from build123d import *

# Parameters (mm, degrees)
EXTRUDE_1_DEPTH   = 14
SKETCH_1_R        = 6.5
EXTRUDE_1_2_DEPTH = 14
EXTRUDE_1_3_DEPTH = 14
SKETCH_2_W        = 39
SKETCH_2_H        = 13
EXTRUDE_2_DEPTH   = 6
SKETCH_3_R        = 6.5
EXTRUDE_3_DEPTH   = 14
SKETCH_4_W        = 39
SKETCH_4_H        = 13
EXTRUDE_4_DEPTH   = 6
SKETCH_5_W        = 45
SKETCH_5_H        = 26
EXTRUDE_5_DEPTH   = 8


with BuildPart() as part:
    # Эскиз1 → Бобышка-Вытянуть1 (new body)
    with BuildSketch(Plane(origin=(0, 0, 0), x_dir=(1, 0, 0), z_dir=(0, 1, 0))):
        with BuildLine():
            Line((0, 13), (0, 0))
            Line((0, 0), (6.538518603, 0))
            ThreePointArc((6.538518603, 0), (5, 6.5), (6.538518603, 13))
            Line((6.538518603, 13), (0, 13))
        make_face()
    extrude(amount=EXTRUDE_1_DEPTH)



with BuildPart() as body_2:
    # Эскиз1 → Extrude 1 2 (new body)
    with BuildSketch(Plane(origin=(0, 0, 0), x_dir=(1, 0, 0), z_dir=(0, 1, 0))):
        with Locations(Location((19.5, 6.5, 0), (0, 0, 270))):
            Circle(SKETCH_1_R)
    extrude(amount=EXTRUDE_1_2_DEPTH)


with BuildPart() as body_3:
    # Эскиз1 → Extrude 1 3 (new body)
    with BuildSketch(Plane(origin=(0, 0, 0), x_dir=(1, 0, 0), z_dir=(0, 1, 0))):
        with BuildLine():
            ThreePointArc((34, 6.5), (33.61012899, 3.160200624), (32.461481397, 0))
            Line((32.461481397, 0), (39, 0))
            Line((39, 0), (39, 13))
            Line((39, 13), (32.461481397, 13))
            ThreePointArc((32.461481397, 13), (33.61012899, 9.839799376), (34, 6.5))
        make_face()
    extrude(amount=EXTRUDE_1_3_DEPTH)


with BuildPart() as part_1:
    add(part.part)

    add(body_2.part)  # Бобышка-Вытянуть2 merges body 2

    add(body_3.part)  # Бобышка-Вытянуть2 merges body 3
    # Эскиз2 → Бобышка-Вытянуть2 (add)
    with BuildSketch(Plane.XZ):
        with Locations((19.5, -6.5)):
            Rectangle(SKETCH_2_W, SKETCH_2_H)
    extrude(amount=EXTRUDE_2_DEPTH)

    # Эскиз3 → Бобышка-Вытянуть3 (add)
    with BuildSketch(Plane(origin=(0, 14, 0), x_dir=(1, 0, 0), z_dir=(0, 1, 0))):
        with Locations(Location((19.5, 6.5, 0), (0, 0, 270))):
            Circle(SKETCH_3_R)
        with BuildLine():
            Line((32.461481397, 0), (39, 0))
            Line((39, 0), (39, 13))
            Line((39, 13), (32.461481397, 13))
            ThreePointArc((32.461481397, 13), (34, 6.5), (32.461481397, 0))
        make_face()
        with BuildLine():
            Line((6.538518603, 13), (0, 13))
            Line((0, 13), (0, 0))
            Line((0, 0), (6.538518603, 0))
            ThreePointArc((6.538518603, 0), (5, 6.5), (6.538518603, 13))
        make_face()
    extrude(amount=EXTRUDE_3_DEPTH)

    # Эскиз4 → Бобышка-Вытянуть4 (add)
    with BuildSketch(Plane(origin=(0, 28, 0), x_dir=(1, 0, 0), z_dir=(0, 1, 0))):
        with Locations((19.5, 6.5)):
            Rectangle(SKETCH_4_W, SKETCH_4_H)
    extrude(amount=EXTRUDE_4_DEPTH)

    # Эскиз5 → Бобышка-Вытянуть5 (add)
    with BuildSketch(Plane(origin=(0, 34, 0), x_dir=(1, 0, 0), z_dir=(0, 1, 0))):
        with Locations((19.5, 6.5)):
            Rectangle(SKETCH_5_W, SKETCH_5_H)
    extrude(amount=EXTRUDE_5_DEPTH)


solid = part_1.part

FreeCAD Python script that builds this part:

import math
import FreeCAD as App
import Part
import Sketcher

V = App.Vector
Q = App.Units.Quantity


def add_polygon(sketch, points):
    """Adds a closed chain of lines whose ends are joined by coincident constraints."""
    first, n = sketch.GeometryCount, len(points)
    for a, b in zip(points, points[1:] + points[:1]):
        sketch.addGeometry(Part.LineSegment(App.Vector(*a, 0), App.Vector(*b, 0)), False)
    for i in range(n):
        sketch.addConstraint(Sketcher.Constraint("Coincident", first + i, 2, first + (i + 1) % n, 1))

doc = App.newDocument("Part")
body = doc.addObject("PartDesign::Body", "Body")

# Sketch on XZ plane
sketch1 = body.newObject("Sketcher::SketchObject", "Sketch")
sketch1.AttachmentSupport = (doc.getObject("XZ_Plane"), [""])
sketch1.MapMode = "FlatFace"
sketch1.addGeometry(Part.LineSegment(V(0, -13, 0), V(0, 0, 0)), False)
sketch1.addGeometry(Part.LineSegment(V(0, 0, 0), V(7, 0, 0)), False)
sketch1.addGeometry(Part.ArcOfCircle(Part.Circle(V(20, -6, 0), V(0, 0, 1), 15), math.radians(153), math.radians(207)), False)
sketch1.addGeometry(Part.LineSegment(V(7, -13, 0), V(0, -13, 0)), False)
sketch1.addConstraint(Sketcher.Constraint("Coincident", 0, 2, 1, 1))
sketch1.addConstraint(Sketcher.Constraint("Coincident", 1, 2, 2, 1))
sketch1.addConstraint(Sketcher.Constraint("Coincident", 2, 2, 3, 1))
sketch1.addConstraint(Sketcher.Constraint("Coincident", 3, 2, 0, 1))
sketch1.addConstraint(Sketcher.Constraint("Vertical", 0))
sketch1.addConstraint(Sketcher.Constraint("Horizontal", 1))
sketch1.addConstraint(Sketcher.Constraint("Horizontal", 3))
sketch1.addConstraint(Sketcher.Constraint("Coincident", 0, 2, -1, 1))
sketch1.addConstraint(Sketcher.Constraint("Vertical", 1, 2, 2, 2))
sketch1.addConstraint(Sketcher.Constraint("Radius", 2, Q("14.5 mm")))
sketch1.addConstraint(Sketcher.Constraint("DistanceY", 0, 1, 0, 2, Q("13 mm")))
sketch1.addConstraint(Sketcher.Constraint("DistanceX", -1, 1, 2, 3, Q("19.5 mm")))
pad1 = body.newObject("PartDesign::Pad", "Pad")
pad1.Profile = sketch1
pad1.Length = 14
pad1.Reversed = True
body2 = doc.addObject("PartDesign::Body", "Body001")

# Sketch on XZ plane
sketch2 = body2.newObject("Sketcher::SketchObject", "Sketch001")
sketch2.AttachmentSupport = (doc.getObject("XZ_Plane001"), [""])
sketch2.MapMode = "FlatFace"
sketch2.addGeometry(Part.Circle(V(20, -6, 0), V(0, 0, 1), 6), False)
sketch2.addConstraint(Sketcher.Constraint("Diameter", 0, Q("13 mm")))
sketch2.addConstraint(Sketcher.Constraint("DistanceX", -1, 1, 0, 3, Q("19.5 mm")))
sketch2.addConstraint(Sketcher.Constraint("DistanceY", 0, 3, -1, 1, Q("6.5 mm")))
pad2 = body2.newObject("PartDesign::Pad", "Pad001")
pad2.Profile = sketch2
pad2.Length = 14
pad2.Reversed = True
body3 = doc.addObject("PartDesign::Body", "Body002")

# Sketch on XZ plane
sketch3 = body3.newObject("Sketcher::SketchObject", "Sketch002")
sketch3.AttachmentSupport = (doc.getObject("XZ_Plane002"), [""])
sketch3.MapMode = "FlatFace"
sketch3.addGeometry(Part.ArcOfCircle(Part.Circle(V(19, -7, 0), V(0, 0, 1), 15), math.radians(0), math.radians(27)), False)
sketch3.addGeometry(Part.LineSegment(V(32, 0, 0), V(39, 0, 0)), False)
sketch3.addGeometry(Part.LineSegment(V(39, 0, 0), V(39, -13, 0)), False)
sketch3.addGeometry(Part.LineSegment(V(39, -13, 0), V(32, -13, 0)), False)
sketch3.addGeometry(Part.ArcOfCircle(Part.Circle(V(19, -6, 0), V(0, 0, 1), 15), math.radians(-27), math.radians(0)), False)
sketch3.addConstraint(Sketcher.Constraint("Coincident", 0, 2, 1, 1))
sketch3.addConstraint(Sketcher.Constraint("Coincident", 1, 2, 2, 1))
sketch3.addConstraint(Sketcher.Constraint("Coincident", 2, 2, 3, 1))
sketch3.addConstraint(Sketcher.Constraint("Coincident", 3, 2, 4, 1))
sketch3.addConstraint(Sketcher.Constraint("Tangent", 4, 2, 0, 1))
sketch3.addConstraint(Sketcher.Constraint("Horizontal", 1))
sketch3.addConstraint(Sketcher.Constraint("Vertical", 2))
sketch3.addConstraint(Sketcher.Constraint("Horizontal", 3))
sketch3.addConstraint(Sketcher.Constraint("Equal", 0, 4))
sketch3.addConstraint(Sketcher.Constraint("PointOnObject", 0, 2, -1))
sketch3.addConstraint(Sketcher.Constraint("Horizontal", 0, 3, 4, 2))
sketch3.addConstraint(Sketcher.Constraint("Vertical", 0, 2, 3, 2))
sketch3.addConstraint(Sketcher.Constraint("Radius", 0, Q("14.5 mm")))
sketch3.addConstraint(Sketcher.Constraint("DistanceY", 2, 2, 2, 1, Q("13 mm")))
sketch3.addConstraint(Sketcher.Constraint("DistanceX", -1, 1, 1, 2, Q("39 mm")))
sketch3.addConstraint(Sketcher.Constraint("DistanceX", -1, 1, 4, 2, Q("34 mm")))
pad3 = body3.newObject("PartDesign::Pad", "Pad002")
pad3.Profile = sketch3
pad3.Length = 14
pad3.Reversed = True
body.AllowCompound = True
doc.recompute()

boolean = body.newObject("PartDesign::Boolean", "Boolean")
boolean.Type = "Fuse"
boolean.addObjects([body2])
doc.recompute()

boolean2 = body.newObject("PartDesign::Boolean", "Boolean001")
boolean2.Type = "Fuse"
boolean2.addObjects([body3])

# Sketch on XZ plane
sketch4 = body.newObject("Sketcher::SketchObject", "Sketch003")
sketch4.AttachmentSupport = (doc.getObject("XZ_Plane"), [""])
sketch4.MapMode = "FlatFace"
add_polygon(sketch4, [(0, 0), (0, -13), (39, -13), (39, 0)])  # lines 0-3
sketch4.addConstraint(Sketcher.Constraint("Vertical", 0))
sketch4.addConstraint(Sketcher.Constraint("Horizontal", 1))
sketch4.addConstraint(Sketcher.Constraint("Vertical", 2))
sketch4.addConstraint(Sketcher.Constraint("Horizontal", 3))
sketch4.addConstraint(Sketcher.Constraint("Coincident", 3, 2, -1, 1))
sketch4.addConstraint(Sketcher.Constraint("DistanceX", 1, 1, 1, 2, Q("39 mm")))
sketch4.addConstraint(Sketcher.Constraint("DistanceY", 0, 2, 0, 1, Q("13 mm")))
pad4 = body.newObject("PartDesign::Pad", "Pad003")
pad4.Profile = sketch4
pad4.Length = 6

# Sketch on XZ plane
sketch5 = body.newObject("Sketcher::SketchObject", "Sketch004")
sketch5.AttachmentSupport = (doc.getObject("XZ_Plane"), [""])
sketch5.MapMode = "FlatFace"
sketch5.AttachmentOffset = App.Placement(V(0, 0, -14), App.Rotation())
sketch5.addGeometry(Part.Circle(V(20, -6, 0), V(0, 0, 1), 6), False)
sketch5.addGeometry(Part.LineSegment(V(32, 0, 0), V(39, 0, 0)), False)
sketch5.addGeometry(Part.LineSegment(V(39, 0, 0), V(39, -13, 0)), False)
sketch5.addGeometry(Part.LineSegment(V(39, -13, 0), V(32, -13, 0)), False)
sketch5.addGeometry(Part.ArcOfCircle(Part.Circle(V(19, -6, 0), V(0, 0, 1), 15), math.radians(-27), math.radians(27)), False)
sketch5.addGeometry(Part.LineSegment(V(7, -13, 0), V(0, -13, 0)), False)
sketch5.addGeometry(Part.LineSegment(V(0, -13, 0), V(0, 0, 0)), False)
sketch5.addGeometry(Part.LineSegment(V(0, 0, 0), V(7, 0, 0)), False)
sketch5.addGeometry(Part.ArcOfCircle(Part.Circle(V(20, -6, 0), V(0, 0, 1), 15), math.radians(153), math.radians(207)), False)
sketch5.addConstraint(Sketcher.Constraint("Coincident", 1, 2, 2, 1))
sketch5.addConstraint(Sketcher.Constraint("Coincident", 2, 2, 3, 1))
sketch5.addConstraint(Sketcher.Constraint("Coincident", 3, 2, 4, 1))
sketch5.addConstraint(Sketcher.Constraint("Coincident", 4, 2, 1, 1))
sketch5.addConstraint(Sketcher.Constraint("Coincident", 5, 2, 6, 1))
sketch5.addConstraint(Sketcher.Constraint("Coincident", 6, 2, 7, 1))
sketch5.addConstraint(Sketcher.Constraint("Coincident", 7, 2, 8, 1))
sketch5.addConstraint(Sketcher.Constraint("Coincident", 8, 2, 5, 1))
sketch5.addConstraint(Sketcher.Constraint("Horizontal", 1))
sketch5.addConstraint(Sketcher.Constraint("Vertical", 2))
sketch5.addConstraint(Sketcher.Constraint("Horizontal", 3))
sketch5.addConstraint(Sketcher.Constraint("Horizontal", 5))
sketch5.addConstraint(Sketcher.Constraint("Vertical", 6))
sketch5.addConstraint(Sketcher.Constraint("Horizontal", 7))
sketch5.addConstraint(Sketcher.Constraint("Coincident", 6, 2, -1, 1))
sketch5.addConstraint(Sketcher.Constraint("Coincident", 4, 3, 0, 3))
sketch5.addConstraint(Sketcher.Constraint("Coincident", 8, 3, 0, 3))
sketch5.addConstraint(Sketcher.Constraint("Equal", 4, 8))
sketch5.addConstraint(Sketcher.Constraint("PointOnObject", 1, 2, -1))
sketch5.addConstraint(Sketcher.Constraint("Horizontal", 3, 2, 5, 2))
sketch5.addConstraint(Sketcher.Constraint("Vertical", 3, 2, 4, 2))
sketch5.addConstraint(Sketcher.Constraint("Equal", 3, 5))
sketch5.addConstraint(Sketcher.Constraint("Diameter", 0, Q("13 mm")))
sketch5.addConstraint(Sketcher.Constraint("Radius", 4, Q("14.5 mm")))
sketch5.addConstraint(Sketcher.Constraint("DistanceY", 2, 2, 2, 1, Q("13 mm")))
sketch5.addConstraint(Sketcher.Constraint("DistanceX", -1, 1, 1, 2, Q("39 mm")))
pad5 = body.newObject("PartDesign::Pad", "Pad004")
pad5.Profile = sketch5
pad5.Length = 14
pad5.Reversed = True

# Sketch on XZ plane
sketch6 = body.newObject("Sketcher::SketchObject", "Sketch005")
sketch6.AttachmentSupport = (doc.getObject("XZ_Plane"), [""])
sketch6.MapMode = "FlatFace"
sketch6.AttachmentOffset = App.Placement(V(0, 0, -28), App.Rotation())
add_polygon(sketch6, [(0, -13), (0, 0), (39, 0), (39, -13)])  # lines 0-3
sketch6.addConstraint(Sketcher.Constraint("Vertical", 0))
sketch6.addConstraint(Sketcher.Constraint("Horizontal", 1))
sketch6.addConstraint(Sketcher.Constraint("Vertical", 2))
sketch6.addConstraint(Sketcher.Constraint("Horizontal", 3))
sketch6.addConstraint(Sketcher.Constraint("Coincident", 0, 2, -1, 1))
sketch6.addConstraint(Sketcher.Constraint("DistanceX", 1, 1, 1, 2, Q("39 mm")))
sketch6.addConstraint(Sketcher.Constraint("DistanceY", 0, 1, 0, 2, Q("13 mm")))
pad6 = body.newObject("PartDesign::Pad", "Pad005")
pad6.Profile = sketch6
pad6.Length = 6
pad6.Reversed = True

# Sketch on XZ plane
sketch7 = body.newObject("Sketcher::SketchObject", "Sketch006")
sketch7.AttachmentSupport = (doc.getObject("XZ_Plane"), [""])
sketch7.MapMode = "FlatFace"
sketch7.AttachmentOffset = App.Placement(V(0, 0, -34), App.Rotation())
add_polygon(sketch7, [(-3, -20), (-3, 6), (42, 6), (42, -20)])  # lines 0-3
sketch7.addConstraint(Sketcher.Constraint("Vertical", 0))
sketch7.addConstraint(Sketcher.Constraint("Horizontal", 1))
sketch7.addConstraint(Sketcher.Constraint("Vertical", 2))
sketch7.addConstraint(Sketcher.Constraint("Horizontal", 3))
sketch7.addConstraint(Sketcher.Constraint("DistanceX", 1, 1, 1, 2, Q("45 mm")))
sketch7.addConstraint(Sketcher.Constraint("DistanceY", 0, 1, 0, 2, Q("26 mm")))
sketch7.addConstraint(Sketcher.Constraint("DistanceX", 0, 2, -1, 1, Q("3 mm")))
sketch7.addConstraint(Sketcher.Constraint("DistanceY", -1, 1, 0, 2, Q("6.5 mm")))
pad7 = body.newObject("PartDesign::Pad", "Pad006")
pad7.Profile = sketch7
pad7.Length = 8
pad7.Reversed = True

doc.recompute()
